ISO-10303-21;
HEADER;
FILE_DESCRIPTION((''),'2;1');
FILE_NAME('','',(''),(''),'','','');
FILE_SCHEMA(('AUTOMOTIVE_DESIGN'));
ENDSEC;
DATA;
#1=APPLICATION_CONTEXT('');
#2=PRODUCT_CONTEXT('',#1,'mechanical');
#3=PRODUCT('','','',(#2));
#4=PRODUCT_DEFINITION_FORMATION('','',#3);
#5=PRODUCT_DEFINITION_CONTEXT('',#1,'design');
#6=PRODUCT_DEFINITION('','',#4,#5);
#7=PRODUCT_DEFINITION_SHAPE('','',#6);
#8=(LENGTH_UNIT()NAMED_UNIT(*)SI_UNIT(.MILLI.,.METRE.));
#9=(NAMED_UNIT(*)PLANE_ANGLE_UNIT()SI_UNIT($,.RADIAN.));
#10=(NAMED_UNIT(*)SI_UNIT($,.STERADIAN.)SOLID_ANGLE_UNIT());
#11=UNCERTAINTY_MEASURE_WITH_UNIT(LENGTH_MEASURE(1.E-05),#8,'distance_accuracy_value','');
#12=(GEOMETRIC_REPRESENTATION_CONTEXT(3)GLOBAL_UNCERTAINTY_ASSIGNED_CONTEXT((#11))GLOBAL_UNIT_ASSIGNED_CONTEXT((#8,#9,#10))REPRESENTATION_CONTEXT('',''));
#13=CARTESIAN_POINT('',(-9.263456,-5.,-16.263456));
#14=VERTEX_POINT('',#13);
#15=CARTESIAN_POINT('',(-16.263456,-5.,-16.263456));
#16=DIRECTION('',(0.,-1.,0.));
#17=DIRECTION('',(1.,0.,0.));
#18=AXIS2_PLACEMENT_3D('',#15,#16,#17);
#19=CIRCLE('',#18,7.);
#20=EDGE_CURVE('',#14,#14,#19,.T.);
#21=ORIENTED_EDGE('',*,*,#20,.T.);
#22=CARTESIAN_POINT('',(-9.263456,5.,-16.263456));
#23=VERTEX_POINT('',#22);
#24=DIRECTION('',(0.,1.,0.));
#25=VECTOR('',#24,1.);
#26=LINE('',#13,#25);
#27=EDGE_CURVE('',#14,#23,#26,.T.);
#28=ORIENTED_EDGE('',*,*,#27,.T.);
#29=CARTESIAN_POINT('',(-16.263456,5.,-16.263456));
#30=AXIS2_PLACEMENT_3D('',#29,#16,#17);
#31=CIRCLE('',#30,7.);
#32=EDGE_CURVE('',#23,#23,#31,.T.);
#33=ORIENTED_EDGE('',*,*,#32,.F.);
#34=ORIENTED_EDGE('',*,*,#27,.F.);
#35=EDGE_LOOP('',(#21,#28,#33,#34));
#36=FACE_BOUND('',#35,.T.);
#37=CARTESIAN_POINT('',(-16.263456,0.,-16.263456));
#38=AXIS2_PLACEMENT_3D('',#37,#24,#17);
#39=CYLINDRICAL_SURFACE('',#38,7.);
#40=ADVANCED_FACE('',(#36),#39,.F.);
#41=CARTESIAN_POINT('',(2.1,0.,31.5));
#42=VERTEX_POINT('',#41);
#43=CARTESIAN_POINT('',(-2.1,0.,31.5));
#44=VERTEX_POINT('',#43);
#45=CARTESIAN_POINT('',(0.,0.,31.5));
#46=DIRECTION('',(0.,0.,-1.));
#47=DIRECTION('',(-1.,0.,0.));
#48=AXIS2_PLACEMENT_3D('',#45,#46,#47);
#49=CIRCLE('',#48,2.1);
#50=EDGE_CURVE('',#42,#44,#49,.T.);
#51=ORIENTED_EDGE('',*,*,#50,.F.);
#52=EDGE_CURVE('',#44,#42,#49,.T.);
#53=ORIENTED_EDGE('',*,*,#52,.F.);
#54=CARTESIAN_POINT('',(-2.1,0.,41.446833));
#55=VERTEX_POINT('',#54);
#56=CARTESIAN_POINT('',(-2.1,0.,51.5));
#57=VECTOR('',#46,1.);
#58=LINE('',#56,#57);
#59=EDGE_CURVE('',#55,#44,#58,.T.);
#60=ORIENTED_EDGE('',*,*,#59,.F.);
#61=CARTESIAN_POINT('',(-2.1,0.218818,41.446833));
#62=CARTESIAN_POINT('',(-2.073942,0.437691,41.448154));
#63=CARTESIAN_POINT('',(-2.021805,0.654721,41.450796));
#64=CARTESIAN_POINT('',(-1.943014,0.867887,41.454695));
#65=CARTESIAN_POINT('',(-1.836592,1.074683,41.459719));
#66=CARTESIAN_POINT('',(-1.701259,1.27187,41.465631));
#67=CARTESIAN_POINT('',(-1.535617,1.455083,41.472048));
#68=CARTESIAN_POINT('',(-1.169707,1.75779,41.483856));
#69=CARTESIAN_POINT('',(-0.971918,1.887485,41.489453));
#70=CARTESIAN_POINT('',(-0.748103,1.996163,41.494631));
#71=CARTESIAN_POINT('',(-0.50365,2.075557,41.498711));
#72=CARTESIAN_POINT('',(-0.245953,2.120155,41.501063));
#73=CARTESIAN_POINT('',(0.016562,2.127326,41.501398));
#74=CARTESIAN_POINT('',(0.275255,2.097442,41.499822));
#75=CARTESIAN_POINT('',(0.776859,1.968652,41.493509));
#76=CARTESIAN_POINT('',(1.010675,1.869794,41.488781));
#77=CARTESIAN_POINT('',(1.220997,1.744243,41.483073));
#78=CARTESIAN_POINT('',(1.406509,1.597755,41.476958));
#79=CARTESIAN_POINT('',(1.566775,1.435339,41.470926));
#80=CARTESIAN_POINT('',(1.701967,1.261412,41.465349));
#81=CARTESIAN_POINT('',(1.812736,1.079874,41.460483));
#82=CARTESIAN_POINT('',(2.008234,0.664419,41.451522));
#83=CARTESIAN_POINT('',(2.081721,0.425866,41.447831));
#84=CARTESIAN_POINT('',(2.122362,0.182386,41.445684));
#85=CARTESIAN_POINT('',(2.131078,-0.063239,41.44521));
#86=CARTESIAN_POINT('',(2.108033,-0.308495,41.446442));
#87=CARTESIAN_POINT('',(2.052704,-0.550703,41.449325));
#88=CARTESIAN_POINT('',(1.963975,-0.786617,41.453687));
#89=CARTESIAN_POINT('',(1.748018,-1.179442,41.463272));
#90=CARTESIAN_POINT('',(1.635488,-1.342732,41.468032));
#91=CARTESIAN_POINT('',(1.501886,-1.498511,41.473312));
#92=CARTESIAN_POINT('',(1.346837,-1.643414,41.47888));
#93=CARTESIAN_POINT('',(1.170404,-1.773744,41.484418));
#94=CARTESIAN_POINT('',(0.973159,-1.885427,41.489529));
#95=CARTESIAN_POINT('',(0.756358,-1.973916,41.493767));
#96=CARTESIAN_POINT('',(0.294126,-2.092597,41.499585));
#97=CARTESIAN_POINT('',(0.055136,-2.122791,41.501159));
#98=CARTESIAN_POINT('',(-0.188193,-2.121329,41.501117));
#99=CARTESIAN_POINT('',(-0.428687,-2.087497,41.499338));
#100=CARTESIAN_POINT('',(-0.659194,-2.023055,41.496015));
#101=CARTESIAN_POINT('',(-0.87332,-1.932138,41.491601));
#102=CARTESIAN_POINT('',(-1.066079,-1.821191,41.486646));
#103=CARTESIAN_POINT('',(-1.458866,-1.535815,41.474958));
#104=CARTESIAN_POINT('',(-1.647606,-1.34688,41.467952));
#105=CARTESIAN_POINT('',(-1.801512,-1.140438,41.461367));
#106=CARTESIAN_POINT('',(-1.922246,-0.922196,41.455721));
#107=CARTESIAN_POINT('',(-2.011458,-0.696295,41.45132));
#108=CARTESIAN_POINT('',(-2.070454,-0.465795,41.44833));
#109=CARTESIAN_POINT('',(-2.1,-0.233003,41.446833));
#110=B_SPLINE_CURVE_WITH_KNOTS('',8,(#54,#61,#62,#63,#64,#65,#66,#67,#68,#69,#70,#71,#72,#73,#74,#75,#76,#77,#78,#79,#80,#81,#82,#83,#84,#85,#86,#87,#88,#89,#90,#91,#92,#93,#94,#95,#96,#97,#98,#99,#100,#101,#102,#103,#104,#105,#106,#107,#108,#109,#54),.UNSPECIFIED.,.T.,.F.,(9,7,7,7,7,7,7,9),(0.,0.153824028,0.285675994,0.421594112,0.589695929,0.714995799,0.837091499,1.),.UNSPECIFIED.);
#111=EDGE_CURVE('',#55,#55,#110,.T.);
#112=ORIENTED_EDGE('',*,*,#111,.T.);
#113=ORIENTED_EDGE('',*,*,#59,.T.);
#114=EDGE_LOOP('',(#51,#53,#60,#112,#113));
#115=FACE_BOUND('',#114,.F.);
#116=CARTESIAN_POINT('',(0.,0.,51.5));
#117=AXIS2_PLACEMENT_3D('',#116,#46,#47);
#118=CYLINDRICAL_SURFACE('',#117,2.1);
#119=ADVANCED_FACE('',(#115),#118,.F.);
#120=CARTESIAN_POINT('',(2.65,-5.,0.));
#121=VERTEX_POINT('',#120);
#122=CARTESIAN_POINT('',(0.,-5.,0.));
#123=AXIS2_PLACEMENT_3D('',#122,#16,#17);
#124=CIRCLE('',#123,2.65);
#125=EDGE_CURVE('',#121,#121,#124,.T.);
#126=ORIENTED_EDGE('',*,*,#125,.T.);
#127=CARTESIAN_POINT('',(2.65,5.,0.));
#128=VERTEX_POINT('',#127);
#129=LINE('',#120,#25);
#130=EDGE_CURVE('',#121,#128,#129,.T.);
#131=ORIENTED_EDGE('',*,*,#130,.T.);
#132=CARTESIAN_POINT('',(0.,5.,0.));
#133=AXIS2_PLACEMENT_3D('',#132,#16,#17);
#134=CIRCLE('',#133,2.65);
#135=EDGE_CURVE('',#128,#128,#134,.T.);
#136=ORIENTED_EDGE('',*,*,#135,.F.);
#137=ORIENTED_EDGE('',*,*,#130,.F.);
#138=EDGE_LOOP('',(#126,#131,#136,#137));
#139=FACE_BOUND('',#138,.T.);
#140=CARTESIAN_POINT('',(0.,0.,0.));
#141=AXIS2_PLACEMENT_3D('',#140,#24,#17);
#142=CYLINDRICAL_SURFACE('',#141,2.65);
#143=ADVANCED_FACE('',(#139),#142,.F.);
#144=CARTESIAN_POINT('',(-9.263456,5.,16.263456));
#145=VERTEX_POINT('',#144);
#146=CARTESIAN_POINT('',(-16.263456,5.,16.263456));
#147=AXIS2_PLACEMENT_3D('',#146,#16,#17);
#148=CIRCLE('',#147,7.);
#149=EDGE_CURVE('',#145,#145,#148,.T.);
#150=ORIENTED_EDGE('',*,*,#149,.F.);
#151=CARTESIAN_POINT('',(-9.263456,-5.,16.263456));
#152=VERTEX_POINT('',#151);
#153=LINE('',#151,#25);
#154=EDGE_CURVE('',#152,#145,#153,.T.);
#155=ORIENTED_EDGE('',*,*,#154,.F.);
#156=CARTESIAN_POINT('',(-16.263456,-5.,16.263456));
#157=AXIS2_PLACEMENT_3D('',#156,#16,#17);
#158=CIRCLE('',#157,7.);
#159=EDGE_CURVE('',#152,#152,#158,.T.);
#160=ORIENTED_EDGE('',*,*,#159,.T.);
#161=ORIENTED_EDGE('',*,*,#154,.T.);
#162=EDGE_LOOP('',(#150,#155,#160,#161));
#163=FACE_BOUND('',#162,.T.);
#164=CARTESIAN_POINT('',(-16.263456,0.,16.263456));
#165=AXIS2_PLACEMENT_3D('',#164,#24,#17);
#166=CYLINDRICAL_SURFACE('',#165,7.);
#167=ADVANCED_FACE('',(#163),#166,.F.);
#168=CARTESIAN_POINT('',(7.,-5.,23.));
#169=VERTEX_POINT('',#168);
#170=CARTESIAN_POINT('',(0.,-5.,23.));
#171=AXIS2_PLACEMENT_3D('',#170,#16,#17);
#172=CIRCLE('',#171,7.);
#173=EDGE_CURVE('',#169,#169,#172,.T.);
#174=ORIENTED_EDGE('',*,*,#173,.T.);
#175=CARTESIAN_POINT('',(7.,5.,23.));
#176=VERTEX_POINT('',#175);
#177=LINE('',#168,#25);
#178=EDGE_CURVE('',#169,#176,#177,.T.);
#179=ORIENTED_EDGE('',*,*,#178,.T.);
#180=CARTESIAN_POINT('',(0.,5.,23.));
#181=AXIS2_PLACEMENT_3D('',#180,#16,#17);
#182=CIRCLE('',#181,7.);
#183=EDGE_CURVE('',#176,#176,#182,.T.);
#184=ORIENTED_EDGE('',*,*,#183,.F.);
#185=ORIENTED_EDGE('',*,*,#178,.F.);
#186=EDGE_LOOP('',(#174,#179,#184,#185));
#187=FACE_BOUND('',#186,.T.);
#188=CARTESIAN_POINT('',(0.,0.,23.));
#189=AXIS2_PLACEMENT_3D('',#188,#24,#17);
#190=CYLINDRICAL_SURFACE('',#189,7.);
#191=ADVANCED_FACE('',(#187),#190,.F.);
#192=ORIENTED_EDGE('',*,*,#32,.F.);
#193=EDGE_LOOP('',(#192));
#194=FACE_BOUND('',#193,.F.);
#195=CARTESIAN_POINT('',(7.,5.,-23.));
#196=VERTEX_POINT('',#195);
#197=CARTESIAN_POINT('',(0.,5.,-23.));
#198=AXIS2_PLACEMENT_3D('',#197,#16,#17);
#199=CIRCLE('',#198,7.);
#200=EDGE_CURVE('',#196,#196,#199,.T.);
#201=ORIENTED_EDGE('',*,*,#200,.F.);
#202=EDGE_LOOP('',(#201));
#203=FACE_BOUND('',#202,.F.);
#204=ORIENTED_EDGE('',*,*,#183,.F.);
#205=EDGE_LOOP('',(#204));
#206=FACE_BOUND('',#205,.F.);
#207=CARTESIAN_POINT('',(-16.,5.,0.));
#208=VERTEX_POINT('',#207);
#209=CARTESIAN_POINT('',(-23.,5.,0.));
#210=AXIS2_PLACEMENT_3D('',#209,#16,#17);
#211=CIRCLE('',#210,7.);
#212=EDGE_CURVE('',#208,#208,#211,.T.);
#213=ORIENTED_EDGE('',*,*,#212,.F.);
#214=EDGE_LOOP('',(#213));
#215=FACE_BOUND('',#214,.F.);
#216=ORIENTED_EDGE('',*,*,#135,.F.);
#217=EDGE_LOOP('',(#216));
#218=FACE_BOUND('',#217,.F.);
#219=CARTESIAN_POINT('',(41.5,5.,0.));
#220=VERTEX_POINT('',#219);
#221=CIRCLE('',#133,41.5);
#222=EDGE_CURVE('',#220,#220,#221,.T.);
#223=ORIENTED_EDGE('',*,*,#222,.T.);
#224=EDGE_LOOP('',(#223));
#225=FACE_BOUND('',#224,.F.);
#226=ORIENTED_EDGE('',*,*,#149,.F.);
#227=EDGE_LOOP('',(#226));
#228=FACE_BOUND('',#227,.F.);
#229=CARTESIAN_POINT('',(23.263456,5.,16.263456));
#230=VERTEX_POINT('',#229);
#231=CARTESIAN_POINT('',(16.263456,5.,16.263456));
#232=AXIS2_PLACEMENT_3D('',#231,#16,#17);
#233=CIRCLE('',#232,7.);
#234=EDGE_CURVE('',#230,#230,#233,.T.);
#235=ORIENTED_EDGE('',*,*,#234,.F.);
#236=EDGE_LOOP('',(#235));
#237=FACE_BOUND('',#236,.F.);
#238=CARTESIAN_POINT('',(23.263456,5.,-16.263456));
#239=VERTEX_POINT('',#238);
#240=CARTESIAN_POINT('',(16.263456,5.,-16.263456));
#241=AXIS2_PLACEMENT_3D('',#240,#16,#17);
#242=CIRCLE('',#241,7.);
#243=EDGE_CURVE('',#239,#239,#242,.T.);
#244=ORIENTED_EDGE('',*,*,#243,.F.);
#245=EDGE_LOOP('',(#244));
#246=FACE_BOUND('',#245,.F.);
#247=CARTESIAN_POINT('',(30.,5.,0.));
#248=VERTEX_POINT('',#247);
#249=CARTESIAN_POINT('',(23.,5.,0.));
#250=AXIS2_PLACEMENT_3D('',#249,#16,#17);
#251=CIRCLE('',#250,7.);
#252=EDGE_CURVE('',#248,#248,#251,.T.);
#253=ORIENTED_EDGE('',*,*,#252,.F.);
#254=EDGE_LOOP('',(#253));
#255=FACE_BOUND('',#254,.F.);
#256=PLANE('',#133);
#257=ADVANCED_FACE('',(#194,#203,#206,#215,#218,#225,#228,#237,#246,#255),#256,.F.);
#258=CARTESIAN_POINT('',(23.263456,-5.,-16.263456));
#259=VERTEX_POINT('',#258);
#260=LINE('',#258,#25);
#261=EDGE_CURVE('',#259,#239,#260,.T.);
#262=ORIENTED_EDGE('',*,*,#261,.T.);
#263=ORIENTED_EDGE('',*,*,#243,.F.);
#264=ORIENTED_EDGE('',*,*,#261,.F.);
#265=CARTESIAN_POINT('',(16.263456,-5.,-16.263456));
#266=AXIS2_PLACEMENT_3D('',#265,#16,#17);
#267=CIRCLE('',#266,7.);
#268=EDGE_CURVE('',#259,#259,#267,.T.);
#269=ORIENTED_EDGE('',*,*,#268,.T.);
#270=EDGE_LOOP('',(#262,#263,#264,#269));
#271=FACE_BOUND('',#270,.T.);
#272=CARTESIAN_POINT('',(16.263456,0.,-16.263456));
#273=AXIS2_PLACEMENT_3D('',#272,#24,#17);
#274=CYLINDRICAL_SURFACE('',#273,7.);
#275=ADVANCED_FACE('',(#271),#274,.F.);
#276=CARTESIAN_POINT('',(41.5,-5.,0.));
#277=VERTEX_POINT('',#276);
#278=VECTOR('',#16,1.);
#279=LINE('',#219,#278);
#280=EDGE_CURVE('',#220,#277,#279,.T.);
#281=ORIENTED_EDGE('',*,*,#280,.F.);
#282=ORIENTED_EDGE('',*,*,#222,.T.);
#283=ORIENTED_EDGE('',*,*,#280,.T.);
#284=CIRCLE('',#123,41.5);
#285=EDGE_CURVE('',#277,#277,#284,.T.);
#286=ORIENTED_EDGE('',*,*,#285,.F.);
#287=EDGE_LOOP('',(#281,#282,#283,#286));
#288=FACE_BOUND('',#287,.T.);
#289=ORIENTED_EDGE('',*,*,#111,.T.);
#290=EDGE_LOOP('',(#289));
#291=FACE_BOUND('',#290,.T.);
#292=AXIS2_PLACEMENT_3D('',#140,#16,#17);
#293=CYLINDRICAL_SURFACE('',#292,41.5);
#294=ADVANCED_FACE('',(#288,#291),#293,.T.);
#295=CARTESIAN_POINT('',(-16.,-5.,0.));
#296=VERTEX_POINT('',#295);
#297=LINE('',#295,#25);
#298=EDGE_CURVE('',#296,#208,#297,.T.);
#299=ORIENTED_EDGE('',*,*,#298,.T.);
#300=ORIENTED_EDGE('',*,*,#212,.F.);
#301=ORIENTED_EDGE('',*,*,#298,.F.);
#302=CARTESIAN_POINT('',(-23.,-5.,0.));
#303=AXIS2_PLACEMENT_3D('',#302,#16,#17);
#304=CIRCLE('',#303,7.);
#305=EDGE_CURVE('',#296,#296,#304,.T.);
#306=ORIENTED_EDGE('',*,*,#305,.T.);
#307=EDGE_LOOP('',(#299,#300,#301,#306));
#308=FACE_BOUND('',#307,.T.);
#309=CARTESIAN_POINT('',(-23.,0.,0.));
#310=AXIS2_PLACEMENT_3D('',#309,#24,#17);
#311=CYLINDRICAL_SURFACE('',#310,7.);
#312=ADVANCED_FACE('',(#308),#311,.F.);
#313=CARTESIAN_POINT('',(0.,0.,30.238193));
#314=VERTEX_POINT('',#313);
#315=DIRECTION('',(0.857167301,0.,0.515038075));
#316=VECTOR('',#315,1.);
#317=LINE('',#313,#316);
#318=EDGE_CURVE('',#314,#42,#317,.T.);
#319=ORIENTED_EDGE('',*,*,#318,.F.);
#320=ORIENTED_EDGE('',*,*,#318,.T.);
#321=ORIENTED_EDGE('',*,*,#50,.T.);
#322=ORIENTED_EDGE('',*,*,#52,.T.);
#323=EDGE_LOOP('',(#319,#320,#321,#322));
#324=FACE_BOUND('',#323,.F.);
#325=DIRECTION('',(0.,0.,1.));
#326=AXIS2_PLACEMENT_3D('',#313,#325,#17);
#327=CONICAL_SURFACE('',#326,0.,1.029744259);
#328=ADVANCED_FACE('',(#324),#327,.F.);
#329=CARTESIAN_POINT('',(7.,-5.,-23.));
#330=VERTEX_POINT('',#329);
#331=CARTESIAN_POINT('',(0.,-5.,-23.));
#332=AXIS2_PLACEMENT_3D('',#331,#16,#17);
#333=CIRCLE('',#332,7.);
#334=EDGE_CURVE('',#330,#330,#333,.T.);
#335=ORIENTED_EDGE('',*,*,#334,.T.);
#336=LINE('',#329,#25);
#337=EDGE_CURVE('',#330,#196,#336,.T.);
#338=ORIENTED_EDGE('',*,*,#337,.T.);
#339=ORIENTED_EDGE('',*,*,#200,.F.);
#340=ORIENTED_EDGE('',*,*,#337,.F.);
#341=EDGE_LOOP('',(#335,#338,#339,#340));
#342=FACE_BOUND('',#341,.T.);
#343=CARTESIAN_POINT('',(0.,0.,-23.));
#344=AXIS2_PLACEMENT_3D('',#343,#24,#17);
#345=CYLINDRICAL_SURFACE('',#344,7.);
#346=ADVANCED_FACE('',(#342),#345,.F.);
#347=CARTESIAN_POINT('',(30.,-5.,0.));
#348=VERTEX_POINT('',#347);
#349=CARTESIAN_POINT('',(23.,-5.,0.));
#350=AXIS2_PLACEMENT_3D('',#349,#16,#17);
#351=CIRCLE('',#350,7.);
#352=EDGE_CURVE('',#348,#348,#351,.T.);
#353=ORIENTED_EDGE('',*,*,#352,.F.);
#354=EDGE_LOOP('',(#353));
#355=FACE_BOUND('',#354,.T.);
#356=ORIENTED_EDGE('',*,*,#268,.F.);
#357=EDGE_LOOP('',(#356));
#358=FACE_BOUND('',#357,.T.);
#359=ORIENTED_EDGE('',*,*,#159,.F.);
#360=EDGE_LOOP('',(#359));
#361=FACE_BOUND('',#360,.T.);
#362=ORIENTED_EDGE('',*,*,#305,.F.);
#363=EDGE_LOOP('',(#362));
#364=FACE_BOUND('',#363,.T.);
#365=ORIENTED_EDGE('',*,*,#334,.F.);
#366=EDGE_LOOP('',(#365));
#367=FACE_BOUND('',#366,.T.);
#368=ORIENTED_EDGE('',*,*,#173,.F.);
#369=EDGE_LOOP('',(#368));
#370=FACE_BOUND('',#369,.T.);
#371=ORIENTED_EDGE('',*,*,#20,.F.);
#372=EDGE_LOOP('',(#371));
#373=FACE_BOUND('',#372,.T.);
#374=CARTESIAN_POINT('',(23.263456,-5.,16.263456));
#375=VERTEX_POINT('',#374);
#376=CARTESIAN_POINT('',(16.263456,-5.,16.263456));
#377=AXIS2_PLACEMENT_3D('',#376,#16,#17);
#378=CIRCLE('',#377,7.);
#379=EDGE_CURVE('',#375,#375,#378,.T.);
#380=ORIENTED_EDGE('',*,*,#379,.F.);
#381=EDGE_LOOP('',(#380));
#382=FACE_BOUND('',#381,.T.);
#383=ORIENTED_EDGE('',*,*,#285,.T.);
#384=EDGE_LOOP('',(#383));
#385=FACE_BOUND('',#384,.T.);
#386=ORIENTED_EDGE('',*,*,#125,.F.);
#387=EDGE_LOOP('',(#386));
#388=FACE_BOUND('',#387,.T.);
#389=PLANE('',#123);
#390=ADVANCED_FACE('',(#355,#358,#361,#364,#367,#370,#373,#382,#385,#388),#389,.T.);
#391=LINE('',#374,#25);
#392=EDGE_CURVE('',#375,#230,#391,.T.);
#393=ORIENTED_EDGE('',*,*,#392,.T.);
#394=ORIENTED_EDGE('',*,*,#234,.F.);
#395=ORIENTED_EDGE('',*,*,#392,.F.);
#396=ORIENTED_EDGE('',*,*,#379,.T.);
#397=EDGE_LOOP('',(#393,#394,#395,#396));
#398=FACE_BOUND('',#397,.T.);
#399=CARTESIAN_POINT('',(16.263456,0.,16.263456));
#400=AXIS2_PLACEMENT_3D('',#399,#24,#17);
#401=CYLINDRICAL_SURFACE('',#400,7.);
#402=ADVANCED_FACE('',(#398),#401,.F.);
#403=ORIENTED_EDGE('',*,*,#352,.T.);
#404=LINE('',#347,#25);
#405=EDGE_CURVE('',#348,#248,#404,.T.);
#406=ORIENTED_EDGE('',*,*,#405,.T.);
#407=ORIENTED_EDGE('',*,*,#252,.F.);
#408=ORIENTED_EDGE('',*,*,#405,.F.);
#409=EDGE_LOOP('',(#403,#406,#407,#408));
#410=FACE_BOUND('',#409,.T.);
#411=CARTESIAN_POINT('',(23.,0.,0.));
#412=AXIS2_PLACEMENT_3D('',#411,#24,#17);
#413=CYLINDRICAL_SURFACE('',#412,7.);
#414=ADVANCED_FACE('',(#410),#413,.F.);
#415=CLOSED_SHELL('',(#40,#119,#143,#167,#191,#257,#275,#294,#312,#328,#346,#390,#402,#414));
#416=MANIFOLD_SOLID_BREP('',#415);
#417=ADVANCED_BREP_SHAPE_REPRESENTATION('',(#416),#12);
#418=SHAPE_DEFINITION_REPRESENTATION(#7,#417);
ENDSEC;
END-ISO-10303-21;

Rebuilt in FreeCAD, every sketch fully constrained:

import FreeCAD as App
import Part
import Sketcher

V = App.Vector
Q = App.Units.Quantity

doc = App.newDocument("Part")
body = doc.addObject("PartDesign::Body", "Body")

sketch1 = doc.addObject("Sketcher::SketchObject", "Sketch")
body.addObject(sketch1)
sketch1.AttachmentSupport = (doc.XZ_Plane, [""])
sketch1.MapMode = "FlatFace"
sketch1.addGeometry(Part.Circle(V(0, 0, 0), V(0, 0, 1), 41.5), False)
sketch1.addGeometry(Part.Circle(V(-16.3, -16.3, 0), V(0, 0, 1), 7), False)
sketch1.addGeometry(Part.Circle(V(0, -23, 0), V(0, 0, 1), 7), False)
sketch1.addGeometry(Part.Circle(V(16.3, -16.3, 0), V(0, 0, 1), 7), False)
sketch1.addGeometry(Part.Circle(V(-23, 0, 0), V(0, 0, 1), 7), False)
sketch1.addGeometry(Part.Circle(V(-16.3, 16.3, 0), V(0, 0, 1), 7), False)
sketch1.addGeometry(Part.Circle(V(0, 0, 0), V(0, 0, 1), 2.6), False)
sketch1.addGeometry(Part.Circle(V(23, 0, 0), V(0, 0, 1), 7), False)
sketch1.addGeometry(Part.Circle(V(0, 23, 0), V(0, 0, 1), 7), False)
sketch1.addGeometry(Part.Circle(V(16.3, 16.3, 0), V(0, 0, 1), 7), False)
sketch1.addConstraint(Sketcher.Constraint("Coincident", 0, 3, -1, 1))
sketch1.addConstraint(Sketcher.Constraint("Coincident", 6, 3, -1, 1))
sketch1.addConstraint(Sketcher.Constraint("Equal", 1, 2))
sketch1.addConstraint(Sketcher.Constraint("Equal", 2, 3))
sketch1.addConstraint(Sketcher.Constraint("Equal", 3, 4))
sketch1.addConstraint(Sketcher.Constraint("Equal", 4, 5))
sketch1.addConstraint(Sketcher.Constraint("Equal", 5, 7))
sketch1.addConstraint(Sketcher.Constraint("Equal", 7, 8))
sketch1.addConstraint(Sketcher.Constraint("Equal", 8, 9))
sketch1.addConstraint(Sketcher.Constraint("Symmetric", 3, 3, 5, 3, -1, 1))
sketch1.addConstraint(Sketcher.Constraint("Symmetric", 4, 3, 7, 3, -1, 1))
sketch1.addConstraint(Sketcher.Constraint("Symmetric", 2, 3, 8, 3, -1, 1))
sketch1.addConstraint(Sketcher.Constraint("Symmetric", 1, 3, 9, 3, -1, 1))
sketch1.addConstraint(Sketcher.Constraint("Symmetric", 1, 3, 3, 3, -2))
sketch1.addConstraint(Sketcher.Constraint("PointOnObject", 2, 3, -2))
sketch1.addConstraint(Sketcher.Constraint("PointOnObject", 4, 3, -1))
sketch1.addConstraint(Sketcher.Constraint("Diameter", 0, Q("83 mm")))
sketch1.addConstraint(Sketcher.Constraint("Diameter", 1, Q("14 mm")))
sketch1.addConstraint(Sketcher.Constraint("Diameter", 6, Q("5.3 mm")))
sketch1.addConstraint(Sketcher.Constraint("DistanceY", 2, 3, -1, 1, Q("23 mm")))
sketch1.addConstraint(Sketcher.Constraint("DistanceX", 4, 3, -1, 1, Q("23 mm")))
sketch1.addConstraint(Sketcher.Constraint("DistanceX", 1, 3, 3, 3, Q("32.526912 mm")))
sketch1.addConstraint(Sketcher.Constraint("DistanceY", 1, 3, 5, 3, Q("32.526912 mm")))
pad1 = doc.addObject("PartDesign::Pad", "Pad")
body.addObject(pad1)
pad1.Profile = sketch1
pad1.Length = 10
pad1.Midplane = True

sketch2 = doc.addObject("Sketcher::SketchObject", "Sketch001")
body.addObject(sketch2)
sketch2.AttachmentSupport = (doc.XY_Plane, [""])
sketch2.MapMode = "FlatFace"
sketch2.AttachmentOffset = App.Placement(V(0, 0, 41.5), App.Rotation())
sketch2.addGeometry(Part.Circle(V(0, 0, 0), V(0, 0, 1), 2.1), False)
sketch2.addConstraint(Sketcher.Constraint("Coincident", 0, 3, -1, 1))
sketch2.addConstraint(Sketcher.Constraint("Diameter", 0, Q("4.2 mm")))
doc.recompute()
hole = doc.addObject("PartDesign::Hole", "Hole")
body.addObject(hole)
hole.Profile = sketch2
hole.ThreadType = "None"
hole.Diameter = 4.2
hole.DepthType = "Dimension"
hole.Depth = 10
hole.DrillPoint = "Angled"
hole.DrillPointAngle = 118

doc.recompute()
